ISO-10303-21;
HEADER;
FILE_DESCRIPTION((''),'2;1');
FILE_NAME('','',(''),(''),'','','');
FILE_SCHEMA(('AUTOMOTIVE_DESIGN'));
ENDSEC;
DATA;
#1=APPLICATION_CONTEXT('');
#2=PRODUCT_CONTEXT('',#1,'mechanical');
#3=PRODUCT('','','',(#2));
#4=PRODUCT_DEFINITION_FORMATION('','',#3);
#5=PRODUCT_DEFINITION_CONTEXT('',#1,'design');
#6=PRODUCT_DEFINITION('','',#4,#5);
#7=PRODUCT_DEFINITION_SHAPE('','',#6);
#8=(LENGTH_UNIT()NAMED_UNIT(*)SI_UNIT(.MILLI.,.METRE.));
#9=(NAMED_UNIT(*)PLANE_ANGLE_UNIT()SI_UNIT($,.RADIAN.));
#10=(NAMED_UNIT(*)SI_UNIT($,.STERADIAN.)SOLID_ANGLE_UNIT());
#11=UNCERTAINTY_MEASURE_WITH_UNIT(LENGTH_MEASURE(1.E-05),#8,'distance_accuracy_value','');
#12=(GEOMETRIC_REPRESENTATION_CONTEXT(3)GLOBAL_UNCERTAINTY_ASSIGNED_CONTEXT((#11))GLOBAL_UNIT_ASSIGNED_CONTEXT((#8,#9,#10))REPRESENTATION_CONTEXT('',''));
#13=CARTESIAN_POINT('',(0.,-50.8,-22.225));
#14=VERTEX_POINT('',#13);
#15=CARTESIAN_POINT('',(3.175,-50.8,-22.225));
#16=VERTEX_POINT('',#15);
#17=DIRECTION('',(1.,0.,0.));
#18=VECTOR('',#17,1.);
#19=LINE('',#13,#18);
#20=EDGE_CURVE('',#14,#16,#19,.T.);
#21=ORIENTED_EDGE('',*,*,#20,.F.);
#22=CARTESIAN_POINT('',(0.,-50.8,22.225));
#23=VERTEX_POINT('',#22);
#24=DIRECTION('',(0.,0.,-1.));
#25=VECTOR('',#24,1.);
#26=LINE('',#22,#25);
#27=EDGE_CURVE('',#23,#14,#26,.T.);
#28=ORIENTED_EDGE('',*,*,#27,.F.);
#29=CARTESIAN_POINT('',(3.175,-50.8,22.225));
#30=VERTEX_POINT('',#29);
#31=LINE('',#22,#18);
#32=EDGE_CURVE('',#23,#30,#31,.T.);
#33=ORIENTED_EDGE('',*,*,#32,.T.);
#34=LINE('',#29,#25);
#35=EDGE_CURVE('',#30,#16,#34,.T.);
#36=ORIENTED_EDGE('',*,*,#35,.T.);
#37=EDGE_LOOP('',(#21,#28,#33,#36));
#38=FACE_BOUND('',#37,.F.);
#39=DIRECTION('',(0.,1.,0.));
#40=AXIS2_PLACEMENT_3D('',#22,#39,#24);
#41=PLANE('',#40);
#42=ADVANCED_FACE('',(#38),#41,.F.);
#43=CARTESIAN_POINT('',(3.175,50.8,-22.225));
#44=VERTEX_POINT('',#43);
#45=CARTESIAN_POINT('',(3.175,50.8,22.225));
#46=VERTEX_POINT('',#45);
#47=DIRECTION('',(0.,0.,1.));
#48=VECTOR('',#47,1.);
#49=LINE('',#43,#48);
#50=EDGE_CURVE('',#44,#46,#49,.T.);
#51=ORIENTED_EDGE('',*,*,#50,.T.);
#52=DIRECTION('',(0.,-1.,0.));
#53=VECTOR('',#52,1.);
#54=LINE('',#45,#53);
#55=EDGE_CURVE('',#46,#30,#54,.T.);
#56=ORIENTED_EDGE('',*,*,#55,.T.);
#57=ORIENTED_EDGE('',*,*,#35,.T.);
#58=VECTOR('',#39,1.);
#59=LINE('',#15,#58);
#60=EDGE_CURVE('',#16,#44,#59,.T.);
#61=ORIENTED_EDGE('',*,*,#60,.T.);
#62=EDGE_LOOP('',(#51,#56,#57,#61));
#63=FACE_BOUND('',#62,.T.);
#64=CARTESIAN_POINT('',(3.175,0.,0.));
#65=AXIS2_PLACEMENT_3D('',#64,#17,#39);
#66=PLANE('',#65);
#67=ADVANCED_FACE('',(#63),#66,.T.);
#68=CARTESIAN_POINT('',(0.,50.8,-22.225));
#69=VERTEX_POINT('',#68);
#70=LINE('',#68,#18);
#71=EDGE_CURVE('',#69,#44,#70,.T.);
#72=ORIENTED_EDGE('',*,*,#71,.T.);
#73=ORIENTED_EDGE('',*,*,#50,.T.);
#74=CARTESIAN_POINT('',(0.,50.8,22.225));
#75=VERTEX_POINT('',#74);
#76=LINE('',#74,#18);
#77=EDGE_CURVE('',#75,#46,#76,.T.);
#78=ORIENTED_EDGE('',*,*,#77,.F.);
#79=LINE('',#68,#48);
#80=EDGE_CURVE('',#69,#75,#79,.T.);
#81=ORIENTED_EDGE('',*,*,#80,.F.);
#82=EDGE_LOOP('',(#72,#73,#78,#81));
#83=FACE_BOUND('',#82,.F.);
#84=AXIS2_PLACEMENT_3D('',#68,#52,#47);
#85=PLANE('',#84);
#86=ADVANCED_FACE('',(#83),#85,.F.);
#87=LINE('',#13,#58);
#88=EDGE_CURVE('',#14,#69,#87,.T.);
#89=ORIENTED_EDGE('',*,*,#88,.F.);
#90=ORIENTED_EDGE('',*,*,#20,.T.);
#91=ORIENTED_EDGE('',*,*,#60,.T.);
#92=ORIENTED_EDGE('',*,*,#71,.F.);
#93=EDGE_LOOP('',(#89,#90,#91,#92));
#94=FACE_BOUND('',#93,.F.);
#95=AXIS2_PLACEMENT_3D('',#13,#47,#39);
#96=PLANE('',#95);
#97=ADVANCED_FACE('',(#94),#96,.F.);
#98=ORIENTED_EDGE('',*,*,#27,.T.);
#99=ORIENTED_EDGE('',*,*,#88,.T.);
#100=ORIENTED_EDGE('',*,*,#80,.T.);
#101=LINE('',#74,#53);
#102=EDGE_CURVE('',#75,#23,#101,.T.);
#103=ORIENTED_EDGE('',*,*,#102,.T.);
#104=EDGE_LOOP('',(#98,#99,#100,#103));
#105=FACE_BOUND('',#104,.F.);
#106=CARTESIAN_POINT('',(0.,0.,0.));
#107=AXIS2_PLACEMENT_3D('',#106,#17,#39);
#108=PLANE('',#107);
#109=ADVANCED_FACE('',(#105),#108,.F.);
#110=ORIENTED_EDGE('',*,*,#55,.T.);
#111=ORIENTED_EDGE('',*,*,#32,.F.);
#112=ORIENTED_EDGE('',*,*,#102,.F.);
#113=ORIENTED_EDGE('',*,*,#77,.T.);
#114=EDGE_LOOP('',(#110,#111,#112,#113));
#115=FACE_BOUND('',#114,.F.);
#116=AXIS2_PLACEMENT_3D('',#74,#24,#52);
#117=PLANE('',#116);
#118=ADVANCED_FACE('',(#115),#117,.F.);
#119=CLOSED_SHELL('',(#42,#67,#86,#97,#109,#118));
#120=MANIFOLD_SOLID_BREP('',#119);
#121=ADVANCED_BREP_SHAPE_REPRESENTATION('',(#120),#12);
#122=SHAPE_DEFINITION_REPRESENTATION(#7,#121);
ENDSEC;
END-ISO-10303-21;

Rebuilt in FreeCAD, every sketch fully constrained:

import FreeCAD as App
import Part
import Sketcher
from FreeCAD import Vector
Q = App.Units.Quantity

doc = App.newDocument("Part")
body = doc.addObject("PartDesign::Body", "Body")

# Sketch on YZ plane
sketch1 = doc.addObject("Sketcher::SketchObject", "Sketch")
body.addObject(sketch1)
sketch1.AttachmentSupport = (doc.YZ_Plane, [""])
sketch1.MapMode = "FlatFace"
sketch1.addGeometry([
    Part.LineSegment(Vector(51, -22, 0), Vector(51, 22, 0)),
    Part.LineSegment(Vector(51, 22, 0), Vector(-51, 22, 0)),
    Part.LineSegment(Vector(-51, 22, 0), Vector(-51, -22, 0)),
    Part.LineSegment(Vector(-51, -22, 0), Vector(51, -22, 0)),
], False)
sketch1.addConstraint([
    Sketcher.Constraint("Coincident", 0, 2, 1, 1),
    Sketcher.Constraint("Coincident", 1, 2, 2, 1),
    Sketcher.Constraint("Coincident", 2, 2, 3, 1),
    Sketcher.Constraint("Coincident", 3, 2, 0, 1),
    Sketcher.Constraint("Vertical", 0),
    Sketcher.Constraint("Horizontal", 1),
    Sketcher.Constraint("Vertical", 2),
    Sketcher.Constraint("Horizontal", 3),
    Sketcher.Constraint("Symmetric", 0, 2, 2, 2, -1, 1),
    Sketcher.Constraint("DistanceX", 1, 2, 1, 1, Q("4 in")),
    Sketcher.Constraint("DistanceY", 0, 1, 0, 2, Q("1.75 in")),
])
pad1 = doc.addObject("PartDesign::Pad", "Pad")
body.addObject(pad1)
pad1.Profile = sketch1
pad1.Length = Q("0.125 in")

doc.recompute()
